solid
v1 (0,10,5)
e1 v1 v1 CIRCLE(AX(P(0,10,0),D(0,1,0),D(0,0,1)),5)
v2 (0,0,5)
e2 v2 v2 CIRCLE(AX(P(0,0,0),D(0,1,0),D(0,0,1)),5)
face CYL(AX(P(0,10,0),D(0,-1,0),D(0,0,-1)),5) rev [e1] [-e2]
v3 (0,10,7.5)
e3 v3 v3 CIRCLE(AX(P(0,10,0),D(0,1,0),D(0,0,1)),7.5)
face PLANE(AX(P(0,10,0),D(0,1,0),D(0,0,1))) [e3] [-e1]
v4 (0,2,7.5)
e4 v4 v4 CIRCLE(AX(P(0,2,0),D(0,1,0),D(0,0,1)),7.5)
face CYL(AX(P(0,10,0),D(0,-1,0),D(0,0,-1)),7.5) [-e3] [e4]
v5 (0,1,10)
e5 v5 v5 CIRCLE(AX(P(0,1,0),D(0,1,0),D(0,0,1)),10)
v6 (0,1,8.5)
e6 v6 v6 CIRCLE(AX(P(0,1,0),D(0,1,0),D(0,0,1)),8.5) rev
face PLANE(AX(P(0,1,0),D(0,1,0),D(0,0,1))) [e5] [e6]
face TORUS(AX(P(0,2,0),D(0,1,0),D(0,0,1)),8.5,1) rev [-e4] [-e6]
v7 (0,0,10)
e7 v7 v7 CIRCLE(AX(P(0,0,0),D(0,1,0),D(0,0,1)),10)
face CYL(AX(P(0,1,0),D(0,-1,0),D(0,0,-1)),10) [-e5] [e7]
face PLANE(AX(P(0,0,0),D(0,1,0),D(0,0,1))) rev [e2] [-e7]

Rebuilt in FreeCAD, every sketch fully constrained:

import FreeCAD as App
import Part
import Sketcher


def edges_at(feature, points):
    """Names of the edges that pass closest to the given points."""
    edges = feature.Shape.Edges
    near = lambda p: min(range(len(edges)), key=lambda i: edges[i].distToShape(Part.Vertex(*p))[0])
    return sorted({f"Edge{near(p) + 1}" for p in points})

doc = App.newDocument("Part")
body = doc.addObject("PartDesign::Body", "Body")

sketch1 = body.newObject("Sketcher::SketchObject", "Sketch")
sketch1.AttachmentSupport = (doc.getObject("XZ_Plane"), [""])
sketch1.MapMode = "FlatFace"
sketch1.addGeometry([
    Part.Circle(App.Vector(0, 0, 0), App.Vector(0, 0, 1), 10),
    Part.Circle(App.Vector(0, 0, 0), App.Vector(0, 0, 1), 8),
], False)
sketch1.addConstraint([
    Sketcher.Constraint("Coincident", 0, 3, -1, 1),
    Sketcher.Constraint("Coincident", 1, 3, -1, 1),
    Sketcher.Constraint("Diameter", 0, 20.0),
    Sketcher.Constraint("Diameter", 1, 15.0),
])
pad1 = body.newObject("PartDesign::Pad", "Pad")
pad1.Profile = sketch1
pad1.Length = 1
pad1.Reversed = True

sketch2 = body.newObject("Sketcher::SketchObject", "Sketch001")
sketch2.AttachmentSupport = (doc.getObject("XZ_Plane"), [""])
sketch2.MapMode = "FlatFace"
sketch2.addGeometry([
    Part.Circle(App.Vector(0, 0, 0), App.Vector(0, 0, 1), 8),
    Part.Circle(App.Vector(0, 0, 0), App.Vector(0, 0, 1), 5),
], False)
sketch2.addConstraint([
    Sketcher.Constraint("Coincident", 0, 3, -1, 1),
    Sketcher.Constraint("Coincident", 1, 3, -1, 1),
    Sketcher.Constraint("Diameter", 0, 15.0),
    Sketcher.Constraint("Diameter", 1, 10.0),
])
pad2 = body.newObject("PartDesign::Pad", "Pad001")
pad2.Profile = sketch2
pad2.Length = 10
pad2.Reversed = True
doc.recompute()

fillet = body.newObject("PartDesign::Fillet", "Fillet")
fillet.Base = (pad2, edges_at(pad2, [(0, 1, -7.5)]))
fillet.Radius = 1

doc.recompute()
